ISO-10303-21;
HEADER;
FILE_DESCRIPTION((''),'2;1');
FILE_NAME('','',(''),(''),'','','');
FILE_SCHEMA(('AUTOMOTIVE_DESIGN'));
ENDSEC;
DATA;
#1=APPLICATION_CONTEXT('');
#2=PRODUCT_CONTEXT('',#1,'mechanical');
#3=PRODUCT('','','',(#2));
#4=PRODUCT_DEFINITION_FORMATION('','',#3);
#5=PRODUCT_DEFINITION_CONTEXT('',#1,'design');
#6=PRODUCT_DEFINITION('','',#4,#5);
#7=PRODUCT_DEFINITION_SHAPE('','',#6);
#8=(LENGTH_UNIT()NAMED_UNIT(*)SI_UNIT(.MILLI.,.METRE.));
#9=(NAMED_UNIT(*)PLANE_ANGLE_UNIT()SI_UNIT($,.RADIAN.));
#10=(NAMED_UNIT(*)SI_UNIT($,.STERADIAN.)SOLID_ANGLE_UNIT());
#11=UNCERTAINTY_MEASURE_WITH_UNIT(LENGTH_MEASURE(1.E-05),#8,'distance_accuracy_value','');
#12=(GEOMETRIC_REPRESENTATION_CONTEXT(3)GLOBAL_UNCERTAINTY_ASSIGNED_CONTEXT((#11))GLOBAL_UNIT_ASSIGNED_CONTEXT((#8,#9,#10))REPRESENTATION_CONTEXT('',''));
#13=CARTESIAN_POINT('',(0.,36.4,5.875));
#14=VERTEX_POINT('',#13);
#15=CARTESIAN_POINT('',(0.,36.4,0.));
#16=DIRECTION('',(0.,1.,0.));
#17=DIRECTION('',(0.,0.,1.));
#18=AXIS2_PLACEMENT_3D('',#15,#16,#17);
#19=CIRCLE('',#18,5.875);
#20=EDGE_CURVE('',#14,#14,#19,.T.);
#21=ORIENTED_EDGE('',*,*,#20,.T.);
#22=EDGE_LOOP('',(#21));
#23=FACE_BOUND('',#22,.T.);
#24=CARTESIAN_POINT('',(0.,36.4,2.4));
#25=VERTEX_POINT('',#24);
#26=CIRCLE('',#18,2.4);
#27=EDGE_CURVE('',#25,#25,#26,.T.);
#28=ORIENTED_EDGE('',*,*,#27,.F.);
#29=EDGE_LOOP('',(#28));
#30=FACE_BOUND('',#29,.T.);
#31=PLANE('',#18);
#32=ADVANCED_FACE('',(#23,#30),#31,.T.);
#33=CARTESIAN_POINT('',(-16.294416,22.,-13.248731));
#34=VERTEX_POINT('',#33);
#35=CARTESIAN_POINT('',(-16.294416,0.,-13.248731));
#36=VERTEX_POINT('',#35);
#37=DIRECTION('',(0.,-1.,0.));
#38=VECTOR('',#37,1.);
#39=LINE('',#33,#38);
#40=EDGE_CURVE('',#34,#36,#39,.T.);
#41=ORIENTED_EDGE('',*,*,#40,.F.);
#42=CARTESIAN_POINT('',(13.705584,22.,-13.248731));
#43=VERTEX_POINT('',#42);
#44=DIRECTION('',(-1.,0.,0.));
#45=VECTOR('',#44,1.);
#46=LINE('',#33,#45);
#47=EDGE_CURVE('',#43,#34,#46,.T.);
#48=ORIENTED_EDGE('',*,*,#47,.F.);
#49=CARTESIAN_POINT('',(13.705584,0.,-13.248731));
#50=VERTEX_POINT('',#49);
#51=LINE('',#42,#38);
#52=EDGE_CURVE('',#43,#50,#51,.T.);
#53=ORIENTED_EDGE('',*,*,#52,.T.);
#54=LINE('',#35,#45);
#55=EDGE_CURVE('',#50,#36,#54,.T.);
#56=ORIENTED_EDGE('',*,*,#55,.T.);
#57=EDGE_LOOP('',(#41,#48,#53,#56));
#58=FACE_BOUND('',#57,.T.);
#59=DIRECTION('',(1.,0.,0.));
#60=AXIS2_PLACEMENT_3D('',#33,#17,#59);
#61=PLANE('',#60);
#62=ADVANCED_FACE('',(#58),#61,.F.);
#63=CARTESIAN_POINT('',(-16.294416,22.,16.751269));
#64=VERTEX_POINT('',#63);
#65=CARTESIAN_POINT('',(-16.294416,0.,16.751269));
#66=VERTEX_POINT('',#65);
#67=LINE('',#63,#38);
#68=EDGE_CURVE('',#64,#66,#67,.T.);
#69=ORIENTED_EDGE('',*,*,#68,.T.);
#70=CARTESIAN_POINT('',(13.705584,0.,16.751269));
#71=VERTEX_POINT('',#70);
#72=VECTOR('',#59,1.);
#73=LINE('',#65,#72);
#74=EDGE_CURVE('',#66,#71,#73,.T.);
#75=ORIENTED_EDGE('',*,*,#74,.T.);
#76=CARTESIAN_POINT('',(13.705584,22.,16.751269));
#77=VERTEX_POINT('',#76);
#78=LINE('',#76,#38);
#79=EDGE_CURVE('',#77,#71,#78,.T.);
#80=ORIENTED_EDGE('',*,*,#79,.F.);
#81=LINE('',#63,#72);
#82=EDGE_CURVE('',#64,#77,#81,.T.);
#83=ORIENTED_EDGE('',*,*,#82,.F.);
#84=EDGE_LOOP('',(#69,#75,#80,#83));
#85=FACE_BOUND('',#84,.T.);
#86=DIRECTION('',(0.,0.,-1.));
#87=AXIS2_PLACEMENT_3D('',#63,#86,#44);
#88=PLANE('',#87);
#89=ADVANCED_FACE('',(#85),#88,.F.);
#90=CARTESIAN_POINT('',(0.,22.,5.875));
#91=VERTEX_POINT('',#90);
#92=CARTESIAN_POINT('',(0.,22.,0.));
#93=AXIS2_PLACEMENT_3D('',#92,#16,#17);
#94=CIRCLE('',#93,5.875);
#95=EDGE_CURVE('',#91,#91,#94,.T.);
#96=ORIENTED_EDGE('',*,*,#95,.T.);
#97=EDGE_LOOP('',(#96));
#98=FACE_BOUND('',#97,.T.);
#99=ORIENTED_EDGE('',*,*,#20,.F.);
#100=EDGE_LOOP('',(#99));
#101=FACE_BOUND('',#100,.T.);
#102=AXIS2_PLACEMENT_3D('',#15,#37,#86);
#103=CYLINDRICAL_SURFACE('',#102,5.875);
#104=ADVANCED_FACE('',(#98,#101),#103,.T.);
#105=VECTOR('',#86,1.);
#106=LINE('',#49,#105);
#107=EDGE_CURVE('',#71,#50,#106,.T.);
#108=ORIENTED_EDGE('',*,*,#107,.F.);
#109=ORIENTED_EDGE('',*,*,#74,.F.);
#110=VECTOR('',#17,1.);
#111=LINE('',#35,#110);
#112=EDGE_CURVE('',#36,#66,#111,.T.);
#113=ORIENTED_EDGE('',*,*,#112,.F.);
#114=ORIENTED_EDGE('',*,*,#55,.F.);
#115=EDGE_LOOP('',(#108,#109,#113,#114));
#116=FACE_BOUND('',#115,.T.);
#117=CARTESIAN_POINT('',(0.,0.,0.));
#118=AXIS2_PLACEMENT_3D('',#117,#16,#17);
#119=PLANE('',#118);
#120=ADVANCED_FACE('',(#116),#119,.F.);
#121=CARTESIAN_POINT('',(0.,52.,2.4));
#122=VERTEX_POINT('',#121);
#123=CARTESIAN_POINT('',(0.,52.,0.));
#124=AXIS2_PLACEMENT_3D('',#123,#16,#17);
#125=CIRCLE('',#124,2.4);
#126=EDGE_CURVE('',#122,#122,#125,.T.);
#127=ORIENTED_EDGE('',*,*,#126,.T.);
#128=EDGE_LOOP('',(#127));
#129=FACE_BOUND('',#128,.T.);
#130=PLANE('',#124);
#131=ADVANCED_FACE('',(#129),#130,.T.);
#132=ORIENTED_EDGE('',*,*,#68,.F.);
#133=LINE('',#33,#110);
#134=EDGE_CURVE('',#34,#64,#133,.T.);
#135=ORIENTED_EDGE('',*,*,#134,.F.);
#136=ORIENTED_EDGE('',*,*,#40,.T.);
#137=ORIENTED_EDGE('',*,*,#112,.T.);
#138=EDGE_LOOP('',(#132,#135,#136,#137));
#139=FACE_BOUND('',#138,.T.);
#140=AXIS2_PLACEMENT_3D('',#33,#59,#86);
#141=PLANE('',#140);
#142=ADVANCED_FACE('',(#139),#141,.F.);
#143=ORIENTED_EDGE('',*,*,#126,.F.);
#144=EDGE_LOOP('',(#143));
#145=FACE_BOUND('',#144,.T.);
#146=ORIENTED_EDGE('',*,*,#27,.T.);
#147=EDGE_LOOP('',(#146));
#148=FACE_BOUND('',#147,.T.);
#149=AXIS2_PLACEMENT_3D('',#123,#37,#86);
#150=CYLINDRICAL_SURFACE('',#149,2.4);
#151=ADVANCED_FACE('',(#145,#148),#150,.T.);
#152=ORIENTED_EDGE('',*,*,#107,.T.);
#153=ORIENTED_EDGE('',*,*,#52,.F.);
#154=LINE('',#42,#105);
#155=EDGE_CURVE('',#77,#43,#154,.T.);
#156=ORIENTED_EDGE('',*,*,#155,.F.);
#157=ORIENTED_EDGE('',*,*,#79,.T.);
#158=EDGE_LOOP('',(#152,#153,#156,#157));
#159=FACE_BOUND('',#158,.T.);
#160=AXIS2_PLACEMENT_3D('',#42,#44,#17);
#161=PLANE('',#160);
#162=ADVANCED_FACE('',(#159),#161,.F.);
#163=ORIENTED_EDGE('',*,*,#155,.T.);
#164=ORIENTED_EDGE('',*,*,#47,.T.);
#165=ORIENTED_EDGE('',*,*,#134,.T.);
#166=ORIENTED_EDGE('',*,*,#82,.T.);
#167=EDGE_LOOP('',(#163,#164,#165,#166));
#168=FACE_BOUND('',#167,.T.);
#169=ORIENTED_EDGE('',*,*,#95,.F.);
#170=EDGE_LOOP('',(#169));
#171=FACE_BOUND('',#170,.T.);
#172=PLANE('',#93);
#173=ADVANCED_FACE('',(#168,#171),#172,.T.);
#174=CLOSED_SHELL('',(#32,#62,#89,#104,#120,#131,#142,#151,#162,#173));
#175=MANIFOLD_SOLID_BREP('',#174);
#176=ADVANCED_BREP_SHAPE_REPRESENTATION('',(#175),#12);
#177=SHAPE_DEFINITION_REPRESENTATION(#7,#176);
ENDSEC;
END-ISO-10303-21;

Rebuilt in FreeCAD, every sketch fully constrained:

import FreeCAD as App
import Part
import Sketcher
from FreeCAD import Vector


def add_polygon(sketch, points):
    """Adds a closed chain of lines whose ends are joined by coincident constraints."""
    first, n = sketch.GeometryCount, len(points)
    for a, b in zip(points, points[1:] + points[:1]):
        sketch.addGeometry(Part.LineSegment(App.Vector(*a, 0), App.Vector(*b, 0)), False)
    for i in range(n):
        sketch.addConstraint(Sketcher.Constraint("Coincident", first + i, 2, first + (i + 1) % n, 1))

doc = App.newDocument("Part")
params = doc.addObject("Spreadsheet::Sheet", "Params")
for row, (alias, value) in enumerate([
    ("sketch1_width", "30 mm"),
    ("pad1_length", "22 mm"),
    ("sketch2_diameter", "11.75 mm"),
    ("pad2_length", "14.4 mm"),
    ("sketch3_diameter", "4.8 mm"),
    ("pad3_length", "15.6 mm"),
], start=1):
    params.set(f"A{row}", alias)
    params.set(f"B{row}", "=" + value)
    params.setAlias(f"B{row}", alias)

body = doc.addObject("PartDesign::Body", "Body")

# Sketch on XZ plane
sketch1 = body.newObject("Sketcher::SketchObject", "Sketch")
sketch1.AttachmentSupport = (doc.getObject("XZ_Plane"), [""])
sketch1.MapMode = "FlatFace"
add_polygon(sketch1, [(-16, -13), (-16, 17), (14, 17), (14, -13)])  # lines 0-3
sketch1.addConstraint([
    Sketcher.Constraint("Vertical", 0),
    Sketcher.Constraint("Horizontal", 1),
    Sketcher.Constraint("Vertical", 2),
    Sketcher.Constraint("Horizontal", 3),
    Sketcher.Constraint("Equal", 3, 0),
    Sketcher.Constraint("DistanceX", 1, 1, 1, 2, 30.0),
    Sketcher.Constraint("DistanceY", -1, 1, 0, 2, 16.751269),
    Sketcher.Constraint("DistanceX", 0, 2, -1, 1, 16.294416),
])
sketch1.setExpression("Constraints[9]", "Params.sketch1_width")
pad1 = body.newObject("PartDesign::Pad", "Pad")
pad1.Profile = sketch1
pad1.setExpression("Length", "Params.pad1_length")
pad1.Reversed = True

# Sketch on XZ plane
sketch2 = body.newObject("Sketcher::SketchObject", "Sketch001")
sketch2.AttachmentSupport = (doc.getObject("XZ_Plane"), [""])
sketch2.MapMode = "FlatFace"
sketch2.AttachmentOffset = App.Placement(Vector(0, 0, -22), App.Rotation())
sketch2.addGeometry(Part.Circle(Vector(0, 0, 0), Vector(0, 0, 1), 6), False)
sketch2.addConstraint([
    Sketcher.Constraint("Coincident", 0, 3, -1, 1),
    Sketcher.Constraint("Diameter", 0, 11.75),
])
sketch2.setExpression("Constraints[1]", "Params.sketch2_diameter")
pad2 = body.newObject("PartDesign::Pad", "Pad001")
pad2.Profile = sketch2
pad2.setExpression("Length", "Params.pad2_length")
pad2.Reversed = True

# Sketch on XZ plane
sketch3 = body.newObject("Sketcher::SketchObject", "Sketch002")
sketch3.AttachmentSupport = (doc.getObject("XZ_Plane"), [""])
sketch3.MapMode = "FlatFace"
sketch3.AttachmentOffset = App.Placement(Vector(0, 0, -36.4), App.Rotation())
sketch3.addGeometry(Part.Circle(Vector(0, 0, 0), Vector(0, 0, 1), 2.4), False)
sketch3.addConstraint([
    Sketcher.Constraint("Coincident", 0, 3, -1, 1),
    Sketcher.Constraint("Diameter", 0, 4.8),
])
sketch3.setExpression("Constraints[1]", "Params.sketch3_diameter")
pad3 = body.newObject("PartDesign::Pad", "Pad002")
pad3.Profile = sketch3
pad3.setExpression("Length", "Params.pad3_length")
pad3.Reversed = True

doc.recompute()
